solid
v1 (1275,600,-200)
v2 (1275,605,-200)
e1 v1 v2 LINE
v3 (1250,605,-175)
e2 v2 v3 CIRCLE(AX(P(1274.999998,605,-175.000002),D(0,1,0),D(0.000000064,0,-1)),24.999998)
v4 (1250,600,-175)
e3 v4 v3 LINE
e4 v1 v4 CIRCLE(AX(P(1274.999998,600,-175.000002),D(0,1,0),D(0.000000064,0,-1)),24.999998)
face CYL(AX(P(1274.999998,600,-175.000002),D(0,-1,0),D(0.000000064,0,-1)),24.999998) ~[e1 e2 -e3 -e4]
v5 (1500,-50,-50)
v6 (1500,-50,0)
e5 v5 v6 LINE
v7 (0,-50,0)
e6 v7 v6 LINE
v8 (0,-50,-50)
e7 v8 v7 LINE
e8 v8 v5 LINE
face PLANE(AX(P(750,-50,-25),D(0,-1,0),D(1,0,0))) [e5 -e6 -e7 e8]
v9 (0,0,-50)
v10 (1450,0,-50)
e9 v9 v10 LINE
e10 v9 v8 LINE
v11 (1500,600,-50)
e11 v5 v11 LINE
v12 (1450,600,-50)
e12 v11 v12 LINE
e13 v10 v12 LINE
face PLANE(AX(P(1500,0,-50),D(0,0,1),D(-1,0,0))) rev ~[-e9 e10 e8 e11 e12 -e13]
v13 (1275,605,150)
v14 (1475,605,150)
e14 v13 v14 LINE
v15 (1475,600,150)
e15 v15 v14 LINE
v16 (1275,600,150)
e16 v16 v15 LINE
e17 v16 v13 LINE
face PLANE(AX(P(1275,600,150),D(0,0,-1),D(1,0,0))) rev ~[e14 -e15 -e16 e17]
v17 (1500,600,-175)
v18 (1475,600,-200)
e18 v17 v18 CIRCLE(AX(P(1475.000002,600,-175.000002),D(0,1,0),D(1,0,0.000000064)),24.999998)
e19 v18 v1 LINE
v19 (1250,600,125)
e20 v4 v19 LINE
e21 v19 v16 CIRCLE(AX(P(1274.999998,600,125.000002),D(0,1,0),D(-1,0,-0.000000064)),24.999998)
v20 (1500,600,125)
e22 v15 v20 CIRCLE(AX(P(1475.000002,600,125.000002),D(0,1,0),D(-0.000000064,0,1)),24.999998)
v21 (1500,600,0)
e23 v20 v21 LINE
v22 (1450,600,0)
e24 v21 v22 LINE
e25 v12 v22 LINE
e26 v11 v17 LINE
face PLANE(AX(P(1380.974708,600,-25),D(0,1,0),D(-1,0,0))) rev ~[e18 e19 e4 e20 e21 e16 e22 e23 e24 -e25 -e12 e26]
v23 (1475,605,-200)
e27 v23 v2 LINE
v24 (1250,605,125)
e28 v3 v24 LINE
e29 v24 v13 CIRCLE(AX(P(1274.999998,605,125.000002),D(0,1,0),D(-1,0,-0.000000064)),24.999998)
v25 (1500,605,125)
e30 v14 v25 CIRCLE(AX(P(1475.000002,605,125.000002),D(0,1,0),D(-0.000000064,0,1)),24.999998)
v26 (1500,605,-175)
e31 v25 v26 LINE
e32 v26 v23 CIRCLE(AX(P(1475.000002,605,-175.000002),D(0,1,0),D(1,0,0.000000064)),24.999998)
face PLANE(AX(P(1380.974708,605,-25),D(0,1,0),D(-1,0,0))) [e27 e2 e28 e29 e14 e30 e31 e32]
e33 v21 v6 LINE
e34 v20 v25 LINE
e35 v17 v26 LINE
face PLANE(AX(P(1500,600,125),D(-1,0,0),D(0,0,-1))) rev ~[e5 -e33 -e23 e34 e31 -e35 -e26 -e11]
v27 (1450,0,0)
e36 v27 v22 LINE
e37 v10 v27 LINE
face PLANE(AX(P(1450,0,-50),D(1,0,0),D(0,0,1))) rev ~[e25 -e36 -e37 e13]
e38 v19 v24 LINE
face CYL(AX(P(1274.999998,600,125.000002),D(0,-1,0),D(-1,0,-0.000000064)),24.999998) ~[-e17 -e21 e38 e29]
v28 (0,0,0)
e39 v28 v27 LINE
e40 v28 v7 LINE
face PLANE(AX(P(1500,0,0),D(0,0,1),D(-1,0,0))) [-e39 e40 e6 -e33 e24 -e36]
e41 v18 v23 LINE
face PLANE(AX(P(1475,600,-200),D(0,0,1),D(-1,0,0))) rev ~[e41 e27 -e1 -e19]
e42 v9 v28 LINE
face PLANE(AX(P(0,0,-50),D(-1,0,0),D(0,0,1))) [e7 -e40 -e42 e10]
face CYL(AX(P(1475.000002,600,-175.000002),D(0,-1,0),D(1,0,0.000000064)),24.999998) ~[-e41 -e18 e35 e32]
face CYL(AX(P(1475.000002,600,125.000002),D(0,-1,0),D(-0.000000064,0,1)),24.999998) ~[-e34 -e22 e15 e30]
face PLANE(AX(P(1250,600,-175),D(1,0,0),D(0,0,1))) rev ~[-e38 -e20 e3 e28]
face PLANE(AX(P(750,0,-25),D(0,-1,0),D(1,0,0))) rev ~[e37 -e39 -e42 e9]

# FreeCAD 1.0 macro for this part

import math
import FreeCAD as App
import Part
import Sketcher

doc = App.newDocument("Part")
body = doc.addObject("PartDesign::Body", "Body")

sketch1 = body.newObject("Sketcher::SketchObject", "Sketch")
sketch1.AttachmentSupport = (doc.getObject("XZ_Plane"), [""])
sketch1.MapMode = "FlatFace"
sketch1.addGeometry([
    Part.LineSegment(App.Vector(0, 0, 0), App.Vector(0, -50, 0)),
    Part.LineSegment(App.Vector(0, -50, 0), App.Vector(1500, -50, 0)),
    Part.LineSegment(App.Vector(1500, -50, 0), App.Vector(1500, 0, 0)),
    Part.LineSegment(App.Vector(1500, 0, 0), App.Vector(0, 0, 0)),
], False)
sketch1.addConstraint([
    Sketcher.Constraint("Coincident", 0, 2, 1, 1),
    Sketcher.Constraint("Coincident", 1, 2, 2, 1),
    Sketcher.Constraint("Coincident", 2, 2, 3, 1),
    Sketcher.Constraint("Coincident", 3, 2, 0, 1),
    Sketcher.Constraint("Vertical", 0),
    Sketcher.Constraint("Horizontal", 1),
    Sketcher.Constraint("Vertical", 2),
    Sketcher.Constraint("Horizontal", 3),
    Sketcher.Constraint("Coincident", 3, 2, -1, 1),
    Sketcher.Constraint("DistanceX", 1, 1, 1, 2, 1500.0),
    Sketcher.Constraint("DistanceY", 0, 2, 0, 1, 50.0),
])
pad1 = body.newObject("PartDesign::Pad", "Pad")
pad1.Profile = sketch1
pad1.Length = 50

sketch2 = body.newObject("Sketcher::SketchObject", "Sketch001")
sketch2.AttachmentSupport = (doc.getObject("XZ_Plane"), [""])
sketch2.MapMode = "FlatFace"
sketch2.addGeometry([
    Part.LineSegment(App.Vector(1500, 0, 0), App.Vector(1500, -50, 0)),
    Part.LineSegment(App.Vector(1500, -50, 0), App.Vector(1450, -50, 0)),
    Part.LineSegment(App.Vector(1450, -50, 0), App.Vector(1450, 0, 0)),
    Part.LineSegment(App.Vector(1450, 0, 0), App.Vector(1500, 0, 0)),
], False)
sketch2.addConstraint([
    Sketcher.Constraint("Coincident", 0, 2, 1, 1),
    Sketcher.Constraint("Coincident", 1, 2, 2, 1),
    Sketcher.Constraint("Coincident", 2, 2, 3, 1),
    Sketcher.Constraint("Coincident", 3, 2, 0, 1),
    Sketcher.Constraint("Vertical", 0),
    Sketcher.Constraint("Horizontal", 1),
    Sketcher.Constraint("Vertical", 2),
    Sketcher.Constraint("Horizontal", 3),
    Sketcher.Constraint("PointOnObject", 2, 2, -1),
    Sketcher.Constraint("Equal", 3, 0),
    Sketcher.Constraint("DistanceX", 1, 2, 1, 1, 50.0),
    Sketcher.Constraint("DistanceX", -1, 1, 0, 2, 1500.0),
])
pad2 = body.newObject("PartDesign::Pad", "Pad001")
pad2.Profile = sketch2
pad2.Length = 600
pad2.Reversed = True

sketch3 = body.newObject("Sketcher::SketchObject", "Sketch002")
sketch3.AttachmentSupport = (doc.getObject("XZ_Plane"), [""])
sketch3.MapMode = "FlatFace"
sketch3.AttachmentOffset = App.Placement(App.Vector(0, 0, -600), App.Rotation())
sketch3.addGeometry([
    Part.LineSegment(App.Vector(1275, 150, 0), App.Vector(1475, 150, 0)),
    Part.ArcOfCircle(Part.Circle(App.Vector(1475.000002, 125.000002, 0), App.Vector(0, 0, 1), 24.999998), math.radians(-0.000004), math.radians(90.000004)),
    Part.LineSegment(App.Vector(1500, 125, 0), App.Vector(1500, -175, 0)),
    Part.ArcOfCircle(Part.Circle(App.Vector(1475.000002, -175.000002, 0), App.Vector(0, 0, 1), 24.999998), math.radians(-90.000004), math.radians(0.000004)),
    Part.LineSegment(App.Vector(1475, -200, 0), App.Vector(1275, -200, 0)),
    Part.ArcOfCircle(Part.Circle(App.Vector(1274.999998, -175.000002, 0), App.Vector(0, 0, 1), 24.999998), math.radians(179.999996), math.radians(270.000004)),
    Part.LineSegment(App.Vector(1250, -175, 0), App.Vector(1250, 125, 0)),
    Part.ArcOfCircle(Part.Circle(App.Vector(1274.999998, 125.000002, 0), App.Vector(0, 0, 1), 24.999998), math.radians(89.999996), math.radians(180.000004)),
], False)
sketch3.addConstraint([
    Sketcher.Constraint("Tangent", 0, 2, 1, 2),
    Sketcher.Constraint("Tangent", 1, 1, 2, 1),
    Sketcher.Constraint("Tangent", 2, 2, 3, 2),
    Sketcher.Constraint("Tangent", 3, 1, 4, 1),
    Sketcher.Constraint("Tangent", 4, 2, 5, 2),
    Sketcher.Constraint("Tangent", 5, 1, 6, 1),
    Sketcher.Constraint("Tangent", 6, 2, 7, 2),
    Sketcher.Constraint("Tangent", 7, 1, 0, 1),
    Sketcher.Constraint("Horizontal", 0),
    Sketcher.Constraint("Vertical", 2),
    Sketcher.Constraint("Horizontal", 4),
    Sketcher.Constraint("Vertical", 6),
    Sketcher.Constraint("Equal", 1, 3),
    Sketcher.Constraint("Equal", 3, 5),
    Sketcher.Constraint("Equal", 5, 7),
    Sketcher.Constraint("Radius", 1, 24.999998),
    Sketcher.Constraint("DistanceX", 0, 1, 0, 2, 200.0),
    Sketcher.Constraint("DistanceY", 2, 2, 2, 1, 300.0),
    Sketcher.Constraint("DistanceX", -1, 1, 1, 3, 1475.000002),
    Sketcher.Constraint("DistanceY", -1, 1, 1, 3, 125.000002),
])
pad3 = body.newObject("PartDesign::Pad", "Pad002")
pad3.Profile = sketch3
pad3.Length = 5
pad3.Reversed = True

doc.recompute()
